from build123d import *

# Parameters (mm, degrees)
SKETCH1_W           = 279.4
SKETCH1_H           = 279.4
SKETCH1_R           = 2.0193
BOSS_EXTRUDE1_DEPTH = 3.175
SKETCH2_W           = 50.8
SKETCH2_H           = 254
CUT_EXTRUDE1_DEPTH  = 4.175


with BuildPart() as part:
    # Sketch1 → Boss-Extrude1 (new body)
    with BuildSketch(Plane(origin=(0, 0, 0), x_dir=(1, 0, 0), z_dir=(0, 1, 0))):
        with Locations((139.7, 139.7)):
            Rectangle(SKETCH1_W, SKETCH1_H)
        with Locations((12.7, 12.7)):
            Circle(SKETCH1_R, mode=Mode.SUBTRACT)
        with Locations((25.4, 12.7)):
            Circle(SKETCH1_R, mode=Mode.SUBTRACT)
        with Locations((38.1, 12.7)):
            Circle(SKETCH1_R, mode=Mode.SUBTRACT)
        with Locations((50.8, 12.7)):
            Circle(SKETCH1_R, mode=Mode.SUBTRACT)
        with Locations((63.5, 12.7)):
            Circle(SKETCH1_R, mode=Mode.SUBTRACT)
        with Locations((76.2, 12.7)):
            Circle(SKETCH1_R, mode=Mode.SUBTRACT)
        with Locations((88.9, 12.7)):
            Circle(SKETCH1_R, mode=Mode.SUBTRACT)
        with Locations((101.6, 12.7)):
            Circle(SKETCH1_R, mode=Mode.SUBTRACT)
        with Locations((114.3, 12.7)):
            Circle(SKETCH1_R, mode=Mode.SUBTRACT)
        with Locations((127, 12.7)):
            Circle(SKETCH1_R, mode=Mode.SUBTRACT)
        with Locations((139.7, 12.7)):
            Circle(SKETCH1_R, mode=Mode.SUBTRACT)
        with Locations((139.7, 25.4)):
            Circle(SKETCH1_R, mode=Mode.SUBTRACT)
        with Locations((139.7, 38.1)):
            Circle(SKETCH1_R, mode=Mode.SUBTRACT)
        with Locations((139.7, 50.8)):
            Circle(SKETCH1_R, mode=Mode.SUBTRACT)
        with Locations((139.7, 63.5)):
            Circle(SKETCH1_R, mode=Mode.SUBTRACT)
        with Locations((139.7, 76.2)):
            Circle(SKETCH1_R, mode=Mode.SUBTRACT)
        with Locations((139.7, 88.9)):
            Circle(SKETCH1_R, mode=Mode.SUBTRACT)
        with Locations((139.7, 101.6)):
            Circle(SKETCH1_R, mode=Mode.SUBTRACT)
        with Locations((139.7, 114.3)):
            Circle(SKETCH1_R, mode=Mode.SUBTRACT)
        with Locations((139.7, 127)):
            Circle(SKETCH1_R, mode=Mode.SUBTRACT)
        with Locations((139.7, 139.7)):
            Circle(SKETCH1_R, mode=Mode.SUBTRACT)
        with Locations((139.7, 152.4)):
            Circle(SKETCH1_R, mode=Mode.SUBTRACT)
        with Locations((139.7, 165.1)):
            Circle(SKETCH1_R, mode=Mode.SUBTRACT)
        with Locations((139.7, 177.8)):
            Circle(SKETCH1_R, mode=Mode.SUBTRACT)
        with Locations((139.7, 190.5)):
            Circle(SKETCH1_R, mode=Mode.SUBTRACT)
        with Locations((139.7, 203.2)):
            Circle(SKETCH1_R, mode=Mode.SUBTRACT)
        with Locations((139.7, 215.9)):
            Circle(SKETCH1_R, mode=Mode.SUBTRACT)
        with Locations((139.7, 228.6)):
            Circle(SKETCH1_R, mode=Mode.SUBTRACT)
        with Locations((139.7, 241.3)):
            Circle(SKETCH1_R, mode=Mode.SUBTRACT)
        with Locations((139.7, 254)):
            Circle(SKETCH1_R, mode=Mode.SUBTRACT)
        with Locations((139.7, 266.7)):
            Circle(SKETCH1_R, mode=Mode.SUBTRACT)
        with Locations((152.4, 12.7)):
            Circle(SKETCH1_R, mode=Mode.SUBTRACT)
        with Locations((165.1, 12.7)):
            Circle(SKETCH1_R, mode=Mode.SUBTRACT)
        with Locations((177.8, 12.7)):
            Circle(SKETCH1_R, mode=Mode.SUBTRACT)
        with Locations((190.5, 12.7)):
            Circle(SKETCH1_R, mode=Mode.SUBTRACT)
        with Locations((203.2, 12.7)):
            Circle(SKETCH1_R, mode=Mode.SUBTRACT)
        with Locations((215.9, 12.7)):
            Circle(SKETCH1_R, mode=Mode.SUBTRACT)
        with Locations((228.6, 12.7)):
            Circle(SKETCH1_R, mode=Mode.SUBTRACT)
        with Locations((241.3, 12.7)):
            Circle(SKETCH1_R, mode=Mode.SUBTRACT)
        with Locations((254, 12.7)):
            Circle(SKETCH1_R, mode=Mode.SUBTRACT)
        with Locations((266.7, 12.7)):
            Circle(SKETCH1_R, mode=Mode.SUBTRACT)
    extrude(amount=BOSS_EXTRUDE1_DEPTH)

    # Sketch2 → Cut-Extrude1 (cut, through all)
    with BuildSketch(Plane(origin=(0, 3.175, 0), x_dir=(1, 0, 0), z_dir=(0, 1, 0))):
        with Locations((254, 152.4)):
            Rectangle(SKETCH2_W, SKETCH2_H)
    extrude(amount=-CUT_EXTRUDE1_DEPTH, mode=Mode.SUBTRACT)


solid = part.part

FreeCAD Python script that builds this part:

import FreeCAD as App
import Part
import Sketcher

V = App.Vector
Q = App.Units.Quantity

doc = App.newDocument("Part")
body = doc.addObject("PartDesign::Body", "Body")

# Sketch on XZ plane
sketch1 = body.newObject("Sketcher::SketchObject", "Sketch")
sketch1.AttachmentSupport = (doc.getObject("XZ_Plane"), [""])
sketch1.MapMode = "FlatFace"
sketch1.addGeometry([
    Part.LineSegment(V(0, -279.4, 0), V(0, 0, 0)),  # 0
    Part.LineSegment(V(0, 0, 0), V(279.4, 0, 0)),  # 1
    Part.LineSegment(V(279.4, 0, 0), V(279.4, -279.4, 0)),  # 2
    Part.LineSegment(V(279.4, -279.4, 0), V(0, -279.4, 0)),  # 3
    Part.Circle(V(12.7, -12.7, 0), V(0, 0, 1), 2.0193),  # 4
    Part.Circle(V(25.4, -12.7, 0), V(0, 0, 1), 2.0193),  # 5
    Part.Circle(V(38.1, -12.7, 0), V(0, 0, 1), 2.0193),  # 6
    Part.Circle(V(50.8, -12.7, 0), V(0, 0, 1), 2.0193),  # 7
    Part.Circle(V(63.5, -12.7, 0), V(0, 0, 1), 2.0193),  # 8
    Part.Circle(V(76.2, -12.7, 0), V(0, 0, 1), 2.0193),  # 9
    Part.Circle(V(88.9, -12.7, 0), V(0, 0, 1), 2.0193),  # 10
    Part.Circle(V(101.6, -12.7, 0), V(0, 0, 1), 2.0193),  # 11
    Part.Circle(V(114.3, -12.7, 0), V(0, 0, 1), 2.0193),  # 12
    Part.Circle(V(127, -12.7, 0), V(0, 0, 1), 2.0193),  # 13
    Part.Circle(V(139.7, -12.7, 0), V(0, 0, 1), 2.0193),  # 14
    Part.Circle(V(152.4, -12.7, 0), V(0, 0, 1), 2.0193),  # 15
    Part.Circle(V(139.7, -25.4, 0), V(0, 0, 1), 2.0193),  # 16
    Part.Circle(V(165.1, -12.7, 0), V(0, 0, 1), 2.0193),  # 17
    Part.Circle(V(139.7, -38.1, 0), V(0, 0, 1), 2.0193),  # 18
    Part.Circle(V(177.8, -12.7, 0), V(0, 0, 1), 2.0193),  # 19
    Part.Circle(V(190.5, -12.7, 0), V(0, 0, 1), 2.0193),  # 20
    Part.Circle(V(203.2, -12.7, 0), V(0, 0, 1), 2.0193),  # 21
    Part.Circle(V(139.7, -50.8, 0), V(0, 0, 1), 2.0193),  # 22
    Part.Circle(V(139.7, -63.5, 0), V(0, 0, 1), 2.0193),  # 23
    Part.Circle(V(215.9, -12.7, 0), V(0, 0, 1), 2.0193),  # 24
    Part.Circle(V(228.6, -12.7, 0), V(0, 0, 1), 2.0193),  # 25
    Part.Circle(V(241.3, -12.7, 0), V(0, 0, 1), 2.0193),  # 26
    Part.Circle(V(254, -12.7, 0), V(0, 0, 1), 2.0193),  # 27
    Part.Circle(V(266.7, -12.7, 0), V(0, 0, 1), 2.0193),  # 28
    Part.Circle(V(139.7, -76.2, 0), V(0, 0, 1), 2.0193),  # 29
    Part.Circle(V(139.7, -88.9, 0), V(0, 0, 1), 2.0193),  # 30
    Part.Circle(V(139.7, -101.6, 0), V(0, 0, 1), 2.0193),  # 31
    Part.Circle(V(139.7, -114.3, 0), V(0, 0, 1), 2.0193),  # 32
    Part.Circle(V(139.7, -127, 0), V(0, 0, 1), 2.0193),  # 33
    Part.Circle(V(139.7, -139.7, 0), V(0, 0, 1), 2.0193),  # 34
    Part.Circle(V(139.7, -152.4, 0), V(0, 0, 1), 2.0193),  # 35
    Part.Circle(V(139.7, -165.1, 0), V(0, 0, 1), 2.0193),  # 36
    Part.Circle(V(139.7, -177.8, 0), V(0, 0, 1), 2.0193),  # 37
    Part.Circle(V(139.7, -190.5, 0), V(0, 0, 1), 2.0193),  # 38
    Part.Circle(V(139.7, -203.2, 0), V(0, 0, 1), 2.0193),  # 39
    Part.Circle(V(139.7, -215.9, 0), V(0, 0, 1), 2.0193),  # 40
    Part.Circle(V(139.7, -228.6, 0), V(0, 0, 1), 2.0193),  # 41
    Part.Circle(V(139.7, -241.3, 0), V(0, 0, 1), 2.0193),  # 42
    Part.Circle(V(139.7, -254, 0), V(0, 0, 1), 2.0193),  # 43
    Part.Circle(V(139.7, -266.7, 0), V(0, 0, 1), 2.0193),  # 44
], False)
sketch1.addConstraint([
    Sketcher.Constraint("Coincident", 0, 2, 1, 1),
    Sketcher.Constraint("Coincident", 1, 2, 2, 1),
    Sketcher.Constraint("Coincident", 2, 2, 3, 1),
    Sketcher.Constraint("Coincident", 3, 2, 0, 1),
    Sketcher.Constraint("Vertical", 0),
    Sketcher.Constraint("Horizontal", 1),
    Sketcher.Constraint("Vertical", 2),
    Sketcher.Constraint("Horizontal", 3),
    Sketcher.Constraint("Coincident", 0, 2, -1, 1),
    Sketcher.Constraint("Equal", 4, 5),
    Sketcher.Constraint("Equal", 5, 6),
    Sketcher.Constraint("Equal", 6, 7),
    Sketcher.Constraint("Equal", 7, 8),
    Sketcher.Constraint("Equal", 8, 9),
    Sketcher.Constraint("Equal", 9, 10),
    Sketcher.Constraint("Equal", 10, 11),
    Sketcher.Constraint("Equal", 11, 12),
    Sketcher.Constraint("Equal", 12, 13),
    Sketcher.Constraint("Equal", 13, 14),
    Sketcher.Constraint("Equal", 14, 15),
    Sketcher.Constraint("Equal", 15, 16),
    Sketcher.Constraint("Equal", 16, 17),
    Sketcher.Constraint("Equal", 17, 18),
    Sketcher.Constraint("Equal", 18, 19),
    Sketcher.Constraint("Equal", 19, 20),
    Sketcher.Constraint("Equal", 20, 21),
    Sketcher.Constraint("Equal", 21, 22),
    Sketcher.Constraint("Equal", 22, 23),
    Sketcher.Constraint("Equal", 23, 24),
    Sketcher.Constraint("Equal", 24, 25),
    Sketcher.Constraint("Equal", 25, 26),
    Sketcher.Constraint("Equal", 26, 27),
    Sketcher.Constraint("Equal", 27, 28),
    Sketcher.Constraint("Equal", 28, 29),
    Sketcher.Constraint("Equal", 29, 30),
    Sketcher.Constraint("Equal", 30, 31),
    Sketcher.Constraint("Equal", 31, 32),
    Sketcher.Constraint("Equal", 32, 33),
    Sketcher.Constraint("Equal", 33, 34),
    Sketcher.Constraint("Equal", 34, 35),
    Sketcher.Constraint("Equal", 35, 36),
    Sketcher.Constraint("Equal", 36, 37),
    Sketcher.Constraint("Equal", 37, 38),
    Sketcher.Constraint("Equal", 38, 39),
    Sketcher.Constraint("Equal", 39, 40),
    Sketcher.Constraint("Equal", 40, 41),
    Sketcher.Constraint("Equal", 41, 42),
    Sketcher.Constraint("Equal", 42, 43),
    Sketcher.Constraint("Equal", 43, 44),
    Sketcher.Constraint("Horizontal", 4, 3, 5, 3),
    Sketcher.Constraint("Horizontal", 5, 3, 6, 3),
    Sketcher.Constraint("Horizontal", 6, 3, 7, 3),
    Sketcher.Constraint("Horizontal", 7, 3, 8, 3),
    Sketcher.Constraint("Horizontal", 8, 3, 9, 3),
    Sketcher.Constraint("Horizontal", 9, 3, 10, 3),
    Sketcher.Constraint("Horizontal", 10, 3, 11, 3),
    Sketcher.Constraint("Horizontal", 11, 3, 12, 3),
    Sketcher.Constraint("Horizontal", 12, 3, 13, 3),
    Sketcher.Constraint("Horizontal", 13, 3, 14, 3),
    Sketcher.Constraint("Horizontal", 14, 3, 15, 3),
    Sketcher.Constraint("Horizontal", 15, 3, 17, 3),
    Sketcher.Constraint("Horizontal", 17, 3, 19, 3),
    Sketcher.Constraint("Horizontal", 19, 3, 20, 3),
    Sketcher.Constraint("Horizontal", 20, 3, 21, 3),
    Sketcher.Constraint("Horizontal", 21, 3, 24, 3),
    Sketcher.Constraint("Horizontal", 24, 3, 25, 3),
    Sketcher.Constraint("Horizontal", 25, 3, 26, 3),
    Sketcher.Constraint("Horizontal", 26, 3, 27, 3),
    Sketcher.Constraint("Horizontal", 27, 3, 28, 3),
    Sketcher.Constraint("Vertical", 14, 3, 16, 3),
    Sketcher.Constraint("Vertical", 16, 3, 18, 3),
    Sketcher.Constraint("Vertical", 18, 3, 22, 3),
    Sketcher.Constraint("Vertical", 22, 3, 23, 3),
    Sketcher.Constraint("Vertical", 23, 3, 29, 3),
    Sketcher.Constraint("Vertical", 29, 3, 30, 3),
    Sketcher.Constraint("Vertical", 30, 3, 31, 3),
    Sketcher.Constraint("Vertical", 31, 3, 32, 3),
    Sketcher.Constraint("Vertical", 32, 3, 33, 3),
    Sketcher.Constraint("Vertical", 33, 3, 34, 3),
    Sketcher.Constraint("Vertical", 34, 3, 35, 3),
    Sketcher.Constraint("Vertical", 35, 3, 36, 3),
    Sketcher.Constraint("Vertical", 36, 3, 37, 3),
    Sketcher.Constraint("Vertical", 37, 3, 38, 3),
    Sketcher.Constraint("Vertical", 38, 3, 39, 3),
    Sketcher.Constraint("Vertical", 39, 3, 40, 3),
    Sketcher.Constraint("Vertical", 40, 3, 41, 3),
    Sketcher.Constraint("Vertical", 41, 3, 42, 3),
    Sketcher.Constraint("Vertical", 42, 3, 43, 3),
    Sketcher.Constraint("Vertical", 43, 3, 44, 3),
    Sketcher.Constraint("Equal", 3, 0),
    Sketcher.Constraint("DistanceX", 1, 1, 1, 2, Q("11 in")),
    Sketcher.Constraint("Diameter", 4, Q("0.159 in")),
    Sketcher.Constraint("DistanceX", -1, 1, 5, 3, Q("1 in")),
    Sketcher.Constraint("DistanceX", -1, 1, 7, 3, Q("2 in")),
    Sketcher.Constraint("DistanceX", -1, 1, 9, 3, Q("3 in")),
    Sketcher.Constraint("DistanceX", -1, 1, 11, 3, Q("4 in")),
    Sketcher.Constraint("DistanceX", -1, 1, 13, 3, Q("5 in")),
    Sketcher.Constraint("DistanceX", -1, 1, 15, 3, Q("6 in")),
    Sketcher.Constraint("DistanceY", 16, 3, -1, 1, Q("1 in")),
    Sketcher.Constraint("DistanceX", -1, 1, 19, 3, Q("7 in")),
    Sketcher.Constraint("DistanceX", -1, 1, 21, 3, Q("8 in")),
    Sketcher.Constraint("DistanceY", 22, 3, -1, 1, Q("2 in")),
    Sketcher.Constraint("DistanceX", -1, 1, 25, 3, Q("9 in")),
    Sketcher.Constraint("DistanceX", -1, 1, 27, 3, Q("10 in")),
    Sketcher.Constraint("DistanceY", 29, 3, -1, 1, Q("3 in")),
    Sketcher.Constraint("DistanceY", 31, 3, -1, 1, Q("4 in")),
    Sketcher.Constraint("DistanceY", 33, 3, -1, 1, Q("5 in")),
    Sketcher.Constraint("DistanceY", 35, 3, -1, 1, Q("6 in")),
    Sketcher.Constraint("DistanceY", 37, 3, -1, 1, Q("7 in")),
    Sketcher.Constraint("DistanceY", 39, 3, -1, 1, Q("8 in")),
    Sketcher.Constraint("DistanceY", 41, 3, -1, 1, Q("9 in")),
    Sketcher.Constraint("DistanceY", 43, 3, -1, 1, Q("10 in")),
    Sketcher.Constraint("DistanceX", 4, 3, 6, 3, Q("1 in")),
    Sketcher.Constraint("DistanceX", 6, 3, 8, 3, Q("1 in")),
    Sketcher.Constraint("DistanceX", 8, 3, 10, 3, Q("1 in")),
    Sketcher.Constraint("DistanceX", 10, 3, 12, 3, Q("1 in")),
    Sketcher.Constraint("DistanceX", 12, 3, 14, 3, Q("1 in")),
    Sketcher.Constraint("DistanceX", 14, 3, 17, 3, Q("1 in")),
    Sketcher.Constraint("DistanceY", 18, 3, 14, 3, Q("1 in")),
    Sketcher.Constraint("DistanceX", 17, 3, 20, 3, Q("1 in")),
    Sketcher.Constraint("DistanceY", 23, 3, 18, 3, Q("1 in")),
    Sketcher.Constraint("DistanceX", 20, 3, 24, 3, Q("1 in")),
    Sketcher.Constraint("DistanceX", 24, 3, 26, 3, Q("1 in")),
    Sketcher.Constraint("DistanceX", 26, 3, 28, 3, Q("1 in")),
    Sketcher.Constraint("DistanceY", 30, 3, 23, 3, Q("1 in")),
    Sketcher.Constraint("DistanceY", 32, 3, 30, 3, Q("1 in")),
    Sketcher.Constraint("DistanceY", 34, 3, 32, 3, Q("1 in")),
    Sketcher.Constraint("DistanceY", 36, 3, 34, 3, Q("1 in")),
    Sketcher.Constraint("DistanceY", 38, 3, 36, 3, Q("1 in")),
    Sketcher.Constraint("DistanceY", 40, 3, 38, 3, Q("1 in")),
    Sketcher.Constraint("DistanceY", 42, 3, 40, 3, Q("1 in")),
    Sketcher.Constraint("DistanceY", 44, 3, 42, 3, Q("1 in")),
    Sketcher.Constraint("DistanceX", -1, 1, 4, 3, Q("0.5 in")),
    Sketcher.Constraint("DistanceY", 4, 3, -1, 1, Q("0.5 in")),
])
pad1 = body.newObject("PartDesign::Pad", "Pad")
pad1.Profile = sketch1
pad1.Length = Q("0.125 in")
pad1.Reversed = True

# Sketch on XZ plane
sketch2 = body.newObject("Sketcher::SketchObject", "Sketch001")
sketch2.AttachmentSupport = (doc.getObject("XZ_Plane"), [""])
sketch2.MapMode = "FlatFace"
sketch2.AttachmentOffset = App.Placement(V(0, 0, -0.125 * 25.4), App.Rotation())
sketch2.addGeometry([
    Part.LineSegment(V(228.6, -279.4, 0), V(228.6, -25.4, 0)),
    Part.LineSegment(V(228.6, -25.4, 0), V(279.4, -25.4, 0)),
    Part.LineSegment(V(279.4, -25.4, 0), V(279.4, -279.4, 0)),
    Part.LineSegment(V(279.4, -279.4, 0), V(228.6, -279.4, 0)),
], False)
sketch2.addConstraint([
    Sketcher.Constraint("Coincident", 0, 2, 1, 1),
    Sketcher.Constraint("Coincident", 1, 2, 2, 1),
    Sketcher.Constraint("Coincident", 2, 2, 3, 1),
    Sketcher.Constraint("Coincident", 3, 2, 0, 1),
    Sketcher.Constraint("Vertical", 0),
    Sketcher.Constraint("Horizontal", 1),
    Sketcher.Constraint("Vertical", 2),
    Sketcher.Constraint("Horizontal", 3),
    Sketcher.Constraint("DistanceX", 1, 1, 1, 2, Q("2 in")),
    Sketcher.Constraint("DistanceY", 0, 1, 0, 2, Q("10 in")),
    Sketcher.Constraint("DistanceX", -1, 1, 0, 2, Q("9 in")),
    Sketcher.Constraint("DistanceY", 0, 2, -1, 1, Q("1 in")),
])
pocket1 = body.newObject("PartDesign::Pocket", "Pocket")
pocket1.Profile = sketch2
pocket1.Type = "ThroughAll"
pocket1.Reversed = True

doc.recompute()
